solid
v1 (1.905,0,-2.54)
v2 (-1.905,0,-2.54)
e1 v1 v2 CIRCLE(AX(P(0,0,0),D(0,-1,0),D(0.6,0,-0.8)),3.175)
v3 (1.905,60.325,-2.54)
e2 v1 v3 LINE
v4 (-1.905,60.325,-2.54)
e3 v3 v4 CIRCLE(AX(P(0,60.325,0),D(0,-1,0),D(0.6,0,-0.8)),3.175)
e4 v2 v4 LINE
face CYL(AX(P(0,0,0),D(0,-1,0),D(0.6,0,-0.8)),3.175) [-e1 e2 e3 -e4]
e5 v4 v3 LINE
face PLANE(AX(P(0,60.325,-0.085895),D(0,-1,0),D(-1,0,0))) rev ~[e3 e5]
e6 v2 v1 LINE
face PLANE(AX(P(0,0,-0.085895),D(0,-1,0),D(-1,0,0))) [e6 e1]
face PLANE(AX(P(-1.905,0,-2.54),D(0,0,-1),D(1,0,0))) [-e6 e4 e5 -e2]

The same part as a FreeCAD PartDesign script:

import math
import FreeCAD as App
import Part
import Sketcher

V = App.Vector
Q = App.Units.Quantity

doc = App.newDocument("Part")
body = doc.addObject("PartDesign::Body", "Body")

# Sketch on XZ plane
sketch1 = body.newObject("Sketcher::SketchObject", "Sketch")
sketch1.AttachmentSupport = (doc.getObject("XZ_Plane"), [""])
sketch1.MapMode = "FlatFace"
sketch1.addGeometry([
    Part.LineSegment(V(1.9, -2.5, 0), V(-1.9, -2.5, 0)),
    Part.ArcOfCircle(Part.Circle(V(0, 0, 0), V(0, 0, 1), 3.2), math.radians(-53), math.radians(233)),
], False)
sketch1.addConstraint([
    Sketcher.Constraint("Coincident", 0, 1, 1, 1),
    Sketcher.Constraint("Coincident", 1, 2, 0, 2),
    Sketcher.Constraint("Horizontal", 0),
    Sketcher.Constraint("Coincident", 1, 3, -1, 1),
    Sketcher.Constraint("Radius", 1, Q("0.125 in")),
    Sketcher.Constraint("DistanceX", 0, 2, 0, 1, Q("0.15 in")),
])
pad1 = body.newObject("PartDesign::Pad", "Pad")
pad1.Profile = sketch1
pad1.Length = Q("2.375 in")
pad1.Reversed = True

doc.recompute()
